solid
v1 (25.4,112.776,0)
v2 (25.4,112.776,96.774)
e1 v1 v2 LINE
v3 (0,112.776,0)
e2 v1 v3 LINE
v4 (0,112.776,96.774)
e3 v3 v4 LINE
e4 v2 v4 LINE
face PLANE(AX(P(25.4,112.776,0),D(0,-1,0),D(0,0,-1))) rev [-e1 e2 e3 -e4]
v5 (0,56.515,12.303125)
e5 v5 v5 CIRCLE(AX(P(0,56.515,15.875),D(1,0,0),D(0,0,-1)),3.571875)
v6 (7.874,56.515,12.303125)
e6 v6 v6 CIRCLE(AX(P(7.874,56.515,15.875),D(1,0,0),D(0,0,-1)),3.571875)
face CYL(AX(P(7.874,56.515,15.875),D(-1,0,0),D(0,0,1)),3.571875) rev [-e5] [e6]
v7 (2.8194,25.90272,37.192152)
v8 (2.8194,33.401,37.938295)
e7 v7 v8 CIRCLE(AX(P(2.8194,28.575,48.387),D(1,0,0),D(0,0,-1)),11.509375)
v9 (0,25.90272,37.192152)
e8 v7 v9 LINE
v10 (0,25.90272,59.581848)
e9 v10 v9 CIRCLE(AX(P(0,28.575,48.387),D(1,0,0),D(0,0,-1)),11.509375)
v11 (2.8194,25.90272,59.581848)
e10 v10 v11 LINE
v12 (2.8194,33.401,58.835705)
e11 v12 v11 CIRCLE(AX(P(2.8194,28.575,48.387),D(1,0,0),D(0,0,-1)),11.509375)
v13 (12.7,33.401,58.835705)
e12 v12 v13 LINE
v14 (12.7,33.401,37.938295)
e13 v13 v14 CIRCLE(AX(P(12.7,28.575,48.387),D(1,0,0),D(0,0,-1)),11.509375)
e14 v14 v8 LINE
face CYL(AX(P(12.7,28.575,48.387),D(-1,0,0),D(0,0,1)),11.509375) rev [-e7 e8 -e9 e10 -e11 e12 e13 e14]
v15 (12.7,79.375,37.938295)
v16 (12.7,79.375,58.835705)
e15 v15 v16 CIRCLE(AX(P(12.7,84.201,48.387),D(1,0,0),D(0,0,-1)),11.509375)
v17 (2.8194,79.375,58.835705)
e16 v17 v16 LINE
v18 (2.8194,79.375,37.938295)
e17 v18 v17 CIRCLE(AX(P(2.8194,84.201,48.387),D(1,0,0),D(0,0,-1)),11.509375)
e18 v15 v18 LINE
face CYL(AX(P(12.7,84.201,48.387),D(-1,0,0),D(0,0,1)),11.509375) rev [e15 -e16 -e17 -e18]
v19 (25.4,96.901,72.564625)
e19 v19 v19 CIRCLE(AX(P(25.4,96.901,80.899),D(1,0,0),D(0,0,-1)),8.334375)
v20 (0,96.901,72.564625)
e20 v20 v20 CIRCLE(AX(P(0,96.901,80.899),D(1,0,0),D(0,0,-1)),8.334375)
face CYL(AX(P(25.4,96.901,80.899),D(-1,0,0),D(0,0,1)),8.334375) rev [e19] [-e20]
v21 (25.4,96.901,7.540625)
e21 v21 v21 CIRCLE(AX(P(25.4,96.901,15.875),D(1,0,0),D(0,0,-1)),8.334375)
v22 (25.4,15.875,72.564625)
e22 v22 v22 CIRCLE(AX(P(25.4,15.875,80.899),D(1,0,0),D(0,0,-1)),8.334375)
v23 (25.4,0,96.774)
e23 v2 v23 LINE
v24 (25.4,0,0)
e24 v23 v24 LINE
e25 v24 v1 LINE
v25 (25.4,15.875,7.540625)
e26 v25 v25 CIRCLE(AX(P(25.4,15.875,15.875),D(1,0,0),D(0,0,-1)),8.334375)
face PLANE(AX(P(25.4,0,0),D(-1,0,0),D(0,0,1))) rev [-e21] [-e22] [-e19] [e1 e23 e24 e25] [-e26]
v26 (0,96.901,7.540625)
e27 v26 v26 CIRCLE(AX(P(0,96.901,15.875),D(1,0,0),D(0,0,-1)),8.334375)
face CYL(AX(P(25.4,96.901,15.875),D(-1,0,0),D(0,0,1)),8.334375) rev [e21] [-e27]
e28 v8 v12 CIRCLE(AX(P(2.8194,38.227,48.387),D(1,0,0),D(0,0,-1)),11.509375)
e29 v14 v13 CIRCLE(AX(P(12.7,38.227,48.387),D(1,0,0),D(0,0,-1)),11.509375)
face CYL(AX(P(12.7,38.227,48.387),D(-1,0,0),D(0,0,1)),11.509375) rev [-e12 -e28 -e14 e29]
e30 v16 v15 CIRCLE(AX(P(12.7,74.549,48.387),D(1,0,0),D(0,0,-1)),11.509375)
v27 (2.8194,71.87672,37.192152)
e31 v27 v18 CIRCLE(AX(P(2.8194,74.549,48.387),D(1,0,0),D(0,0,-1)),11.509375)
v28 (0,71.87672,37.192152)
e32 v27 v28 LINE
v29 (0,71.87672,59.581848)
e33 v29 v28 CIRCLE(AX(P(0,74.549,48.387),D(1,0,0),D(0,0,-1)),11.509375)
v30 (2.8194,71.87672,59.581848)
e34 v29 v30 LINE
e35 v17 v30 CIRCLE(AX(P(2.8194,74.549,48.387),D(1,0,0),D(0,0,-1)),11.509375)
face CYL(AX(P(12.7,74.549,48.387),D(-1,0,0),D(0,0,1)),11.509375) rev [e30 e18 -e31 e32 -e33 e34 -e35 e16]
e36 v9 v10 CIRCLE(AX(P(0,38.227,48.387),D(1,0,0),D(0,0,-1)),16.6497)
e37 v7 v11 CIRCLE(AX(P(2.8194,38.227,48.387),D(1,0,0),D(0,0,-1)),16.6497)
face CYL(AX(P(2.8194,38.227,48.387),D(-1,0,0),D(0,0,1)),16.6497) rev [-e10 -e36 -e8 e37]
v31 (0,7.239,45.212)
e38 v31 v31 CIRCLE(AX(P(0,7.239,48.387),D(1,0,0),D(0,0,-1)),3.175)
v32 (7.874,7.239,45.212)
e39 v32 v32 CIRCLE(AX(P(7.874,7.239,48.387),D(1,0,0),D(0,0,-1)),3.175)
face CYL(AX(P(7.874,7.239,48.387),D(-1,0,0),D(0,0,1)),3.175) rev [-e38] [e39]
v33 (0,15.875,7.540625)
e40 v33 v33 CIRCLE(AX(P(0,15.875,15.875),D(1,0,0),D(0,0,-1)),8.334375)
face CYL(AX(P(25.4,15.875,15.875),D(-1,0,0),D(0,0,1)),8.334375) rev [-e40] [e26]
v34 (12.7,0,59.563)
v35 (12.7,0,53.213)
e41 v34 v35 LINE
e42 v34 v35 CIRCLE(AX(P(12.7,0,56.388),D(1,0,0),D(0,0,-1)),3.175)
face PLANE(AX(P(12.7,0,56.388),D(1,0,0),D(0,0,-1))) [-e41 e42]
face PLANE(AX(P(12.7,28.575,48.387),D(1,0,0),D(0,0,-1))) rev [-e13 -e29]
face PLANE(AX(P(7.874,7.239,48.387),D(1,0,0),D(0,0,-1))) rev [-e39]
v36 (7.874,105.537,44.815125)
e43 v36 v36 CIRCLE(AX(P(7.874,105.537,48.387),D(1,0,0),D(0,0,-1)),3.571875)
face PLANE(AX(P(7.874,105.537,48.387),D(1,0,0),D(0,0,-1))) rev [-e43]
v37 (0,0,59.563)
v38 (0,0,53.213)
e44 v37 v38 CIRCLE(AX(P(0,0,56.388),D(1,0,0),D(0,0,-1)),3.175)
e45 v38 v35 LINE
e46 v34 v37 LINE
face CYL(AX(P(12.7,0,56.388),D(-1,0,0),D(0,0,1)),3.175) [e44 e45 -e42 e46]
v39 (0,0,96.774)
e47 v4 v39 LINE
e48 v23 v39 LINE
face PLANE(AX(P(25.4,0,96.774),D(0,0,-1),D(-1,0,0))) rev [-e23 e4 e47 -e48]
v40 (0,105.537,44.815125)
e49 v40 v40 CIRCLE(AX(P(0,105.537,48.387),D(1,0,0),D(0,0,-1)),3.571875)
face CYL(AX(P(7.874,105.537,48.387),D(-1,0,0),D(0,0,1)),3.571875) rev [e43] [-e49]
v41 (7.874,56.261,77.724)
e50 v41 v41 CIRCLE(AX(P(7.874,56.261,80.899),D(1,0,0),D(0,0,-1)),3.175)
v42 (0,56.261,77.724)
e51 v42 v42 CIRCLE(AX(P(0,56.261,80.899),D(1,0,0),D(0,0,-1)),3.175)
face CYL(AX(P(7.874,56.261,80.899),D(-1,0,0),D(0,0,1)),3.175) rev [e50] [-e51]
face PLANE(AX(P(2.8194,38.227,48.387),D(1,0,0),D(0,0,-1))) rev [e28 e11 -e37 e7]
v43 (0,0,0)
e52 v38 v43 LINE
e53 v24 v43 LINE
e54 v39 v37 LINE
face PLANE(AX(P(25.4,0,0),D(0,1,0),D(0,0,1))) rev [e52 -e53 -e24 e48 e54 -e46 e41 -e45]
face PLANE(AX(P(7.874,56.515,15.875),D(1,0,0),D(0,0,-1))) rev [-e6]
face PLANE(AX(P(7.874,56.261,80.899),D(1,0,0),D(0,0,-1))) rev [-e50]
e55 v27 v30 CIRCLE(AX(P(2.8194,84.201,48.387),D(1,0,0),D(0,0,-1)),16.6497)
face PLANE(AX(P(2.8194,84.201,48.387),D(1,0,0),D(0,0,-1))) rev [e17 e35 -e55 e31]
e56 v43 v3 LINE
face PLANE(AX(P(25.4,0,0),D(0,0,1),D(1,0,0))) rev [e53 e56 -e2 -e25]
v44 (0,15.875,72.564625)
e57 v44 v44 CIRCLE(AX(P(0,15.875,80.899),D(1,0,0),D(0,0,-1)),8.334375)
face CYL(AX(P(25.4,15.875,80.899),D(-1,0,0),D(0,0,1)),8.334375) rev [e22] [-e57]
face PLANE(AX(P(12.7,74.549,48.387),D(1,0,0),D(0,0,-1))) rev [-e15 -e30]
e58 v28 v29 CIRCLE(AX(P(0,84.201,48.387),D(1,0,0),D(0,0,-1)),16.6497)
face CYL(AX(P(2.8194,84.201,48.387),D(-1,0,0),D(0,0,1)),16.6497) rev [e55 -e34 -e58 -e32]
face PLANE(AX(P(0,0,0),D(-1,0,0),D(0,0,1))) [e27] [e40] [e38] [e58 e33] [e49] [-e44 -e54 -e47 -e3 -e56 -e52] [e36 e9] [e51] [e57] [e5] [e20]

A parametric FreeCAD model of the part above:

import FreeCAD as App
import Part
import Sketcher
from FreeCAD import Vector
Q = App.Units.Quantity

doc = App.newDocument("Part")
body = doc.addObject("PartDesign::Body", "Body")

# Sketch on YZ plane
sketch1 = body.newObject("Sketcher::SketchObject", "Sketch")
sketch1.AttachmentSupport = (doc.getObject("YZ_Plane"), [""])
sketch1.MapMode = "FlatFace"
sketch1.addGeometry(Part.LineSegment(Vector(0, 97, 0), Vector(0, 0, 0)), False)
sketch1.addGeometry(Part.LineSegment(Vector(0, 0, 0), Vector(113, 0, 0)), False)
sketch1.addGeometry(Part.LineSegment(Vector(113, 0, 0), Vector(113, 97, 0)), False)
sketch1.addGeometry(Part.LineSegment(Vector(113, 97, 0), Vector(0, 97, 0)), False)
sketch1.addConstraint(Sketcher.Constraint("Coincident", 0, 2, 1, 1))
sketch1.addConstraint(Sketcher.Constraint("Coincident", 1, 2, 2, 1))
sketch1.addConstraint(Sketcher.Constraint("Coincident", 2, 2, 3, 1))
sketch1.addConstraint(Sketcher.Constraint("Coincident", 3, 2, 0, 1))
sketch1.addConstraint(Sketcher.Constraint("Vertical", 0))
sketch1.addConstraint(Sketcher.Constraint("Horizontal", 1))
sketch1.addConstraint(Sketcher.Constraint("Vertical", 2))
sketch1.addConstraint(Sketcher.Constraint("Horizontal", 3))
sketch1.addConstraint(Sketcher.Constraint("Coincident", 0, 2, -1, 1))
sketch1.addConstraint(Sketcher.Constraint("DistanceX", 1, 1, 1, 2, Q("4.44 in")))
sketch1.addConstraint(Sketcher.Constraint("DistanceY", 0, 2, 0, 1, Q("3.81 in")))
pad1 = body.newObject("PartDesign::Pad", "Pad")
pad1.Profile = sketch1
pad1.Length = Q("1 in")

# Sketch on YZ plane
sketch2 = body.newObject("Sketcher::SketchObject", "Sketch001")
sketch2.AttachmentSupport = (doc.getObject("YZ_Plane"), [""])
sketch2.MapMode = "FlatFace"
sketch2.addGeometry(Part.Circle(Vector(16, 16, 0), Vector(0, 0, 1), 8), False)
sketch2.addGeometry(Part.Circle(Vector(97, 16, 0), Vector(0, 0, 1), 8), False)
sketch2.addGeometry(Part.Circle(Vector(16, 81, 0), Vector(0, 0, 1), 8), False)
sketch2.addGeometry(Part.Circle(Vector(97, 81, 0), Vector(0, 0, 1), 8), False)
sketch2.addConstraint(Sketcher.Constraint("Equal", 0, 1))
sketch2.addConstraint(Sketcher.Constraint("Equal", 1, 2))
sketch2.addConstraint(Sketcher.Constraint("Equal", 2, 3))
sketch2.addConstraint(Sketcher.Constraint("Horizontal", 0, 3, 1, 3))
sketch2.addConstraint(Sketcher.Constraint("Horizontal", 2, 3, 3, 3))
sketch2.addConstraint(Sketcher.Constraint("Vertical", 0, 3, 2, 3))
sketch2.addConstraint(Sketcher.Constraint("Vertical", 1, 3, 3, 3))
sketch2.addConstraint(Sketcher.Constraint("Diameter", 0, Q("0.65625 in")))
sketch2.addConstraint(Sketcher.Constraint("DistanceX", 0, 3, 1, 3, Q("3.19 in")))
sketch2.addConstraint(Sketcher.Constraint("DistanceY", 0, 3, 2, 3, Q("2.56 in")))
sketch2.addConstraint(Sketcher.Constraint("DistanceX", -1, 1, 0, 3, Q("0.625 in")))
sketch2.addConstraint(Sketcher.Constraint("DistanceY", -1, 1, 0, 3, Q("0.625 in")))
pocket1 = body.newObject("PartDesign::Pocket", "Pocket")
pocket1.Profile = sketch2
pocket1.Type = "ThroughAll"
pocket1.Reversed = True

# Sketch on YZ plane
sketch3 = body.newObject("Sketcher::SketchObject", "Sketch002")
sketch3.AttachmentSupport = (doc.getObject("YZ_Plane"), [""])
sketch3.MapMode = "FlatFace"
sketch3.addGeometry(Part.Circle(Vector(29, 48, 0), Vector(0, 0, 1), 12), False)
sketch3.addGeometry(Part.Circle(Vector(75, 48, 0), Vector(0, 0, 1), 12), False)
sketch3.addConstraint(Sketcher.Constraint("Equal", 0, 1))
sketch3.addConstraint(Sketcher.Constraint("Horizontal", 0, 3, 1, 3))
sketch3.addConstraint(Sketcher.Constraint("Diameter", 0, Q("0.90625 in")))
sketch3.addConstraint(Sketcher.Constraint("DistanceX", 0, 3, 1, 3, Q("1.81 in")))
sketch3.addConstraint(Sketcher.Constraint("DistanceX", -1, 1, 0, 3, Q("1.125 in")))
sketch3.addConstraint(Sketcher.Constraint("DistanceY", -1, 1, 0, 3, Q("1.905 in")))
pocket2 = body.newObject("PartDesign::Pocket", "Pocket001")
pocket2.Profile = sketch3
pocket2.Length = Q("0.5 in")
pocket2.Reversed = True

# Sketch on YZ plane
sketch4 = body.newObject("Sketcher::SketchObject", "Sketch003")
sketch4.AttachmentSupport = (doc.getObject("YZ_Plane"), [""])
sketch4.MapMode = "FlatFace"
sketch4.addGeometry(Part.Circle(Vector(38, 48, 0), Vector(0, 0, 1), 12), False)
sketch4.addGeometry(Part.Circle(Vector(84, 48, 0), Vector(0, 0, 1), 12), False)
sketch4.addConstraint(Sketcher.Constraint("Equal", 0, 1))
sketch4.addConstraint(Sketcher.Constraint("Horizontal", 0, 3, 1, 3))
sketch4.addConstraint(Sketcher.Constraint("Diameter", 0, Q("0.90625 in")))
sketch4.addConstraint(Sketcher.Constraint("DistanceX", 0, 3, 1, 3, Q("1.81 in")))
sketch4.addConstraint(Sketcher.Constraint("DistanceX", -1, 1, 0, 3, Q("1.505 in")))
sketch4.addConstraint(Sketcher.Constraint("DistanceY", -1, 1, 0, 3, Q("1.905 in")))
pocket3 = body.newObject("PartDesign::Pocket", "Pocket002")
pocket3.Profile = sketch4
pocket3.Length = Q("0.5 in")
pocket3.Reversed = True

# Sketch on YZ plane
sketch5 = body.newObject("Sketcher::SketchObject", "Sketch004")
sketch5.AttachmentSupport = (doc.getObject("YZ_Plane"), [""])
sketch5.MapMode = "FlatFace"
sketch5.addGeometry(Part.Circle(Vector(38, 48, 0), Vector(0, 0, 1), 17), False)
sketch5.addGeometry(Part.Circle(Vector(84, 48, 0), Vector(0, 0, 1), 17), False)
sketch5.addConstraint(Sketcher.Constraint("Equal", 0, 1))
sketch5.addConstraint(Sketcher.Constraint("Horizontal", 0, 3, 1, 3))
sketch5.addConstraint(Sketcher.Constraint("Diameter", 0, Q("1.311 in")))
sketch5.addConstraint(Sketcher.Constraint("DistanceX", 0, 3, 1, 3, Q("1.81 in")))
sketch5.addConstraint(Sketcher.Constraint("DistanceX", -1, 1, 0, 3, Q("1.505 in")))
sketch5.addConstraint(Sketcher.Constraint("DistanceY", -1, 1, 0, 3, Q("1.905 in")))
pocket4 = body.newObject("PartDesign::Pocket", "Pocket003")
pocket4.Profile = sketch5
pocket4.Length = Q("0.111 in")
pocket4.Reversed = True

# Sketch on YZ plane
sketch6 = body.newObject("Sketcher::SketchObject", "Sketch005")
sketch6.AttachmentSupport = (doc.getObject("YZ_Plane"), [""])
sketch6.MapMode = "FlatFace"
sketch6.addGeometry(Part.Circle(Vector(105.5, 48.4, 0), Vector(0, 0, 1), 3.6), False)
sketch6.addGeometry(Part.Circle(Vector(56.5, 15.9, 0), Vector(0, 0, 1), 3.6), False)
sketch6.addConstraint(Sketcher.Constraint("Equal", 0, 1))
sketch6.addConstraint(Sketcher.Constraint("Diameter", 0, Q("0.28125 in")))
sketch6.addConstraint(Sketcher.Constraint("DistanceX", 1, 3, 0, 3, Q("1.93 in")))
sketch6.addConstraint(Sketcher.Constraint("DistanceY", 1, 3, 0, 3, Q("1.28 in")))
sketch6.addConstraint(Sketcher.Constraint("DistanceX", -1, 1, 0, 3, Q("4.155 in")))
sketch6.addConstraint(Sketcher.Constraint("DistanceY", -1, 1, 0, 3, Q("1.905 in")))
pocket5 = body.newObject("PartDesign::Pocket", "Pocket004")
pocket5.Profile = sketch6
pocket5.Length = Q("0.31 in")
pocket5.Reversed = True

# Sketch on YZ plane
sketch7 = body.newObject("Sketcher::SketchObject", "Sketch006")
sketch7.AttachmentSupport = (doc.getObject("YZ_Plane"), [""])
sketch7.MapMode = "FlatFace"
sketch7.addGeometry(Part.Circle(Vector(7.2, 48.4, 0), Vector(0, 0, 1), 3.2), False)
sketch7.addGeometry(Part.Circle(Vector(56.3, 80.9, 0), Vector(0, 0, 1), 3.2), False)
sketch7.addConstraint(Sketcher.Constraint("Equal", 0, 1))
sketch7.addConstraint(Sketcher.Constraint("Diameter", 0, Q("0.25 in")))
sketch7.addConstraint(Sketcher.Constraint("DistanceX", 0, 3, 1, 3, Q("1.93 in")))
sketch7.addConstraint(Sketcher.Constraint("DistanceY", 0, 3, 1, 3, Q("1.28 in")))
sketch7.addConstraint(Sketcher.Constraint("DistanceX", -1, 1, 0, 3, Q("0.285 in")))
sketch7.addConstraint(Sketcher.Constraint("DistanceY", -1, 1, 0, 3, Q("1.905 in")))
pocket6 = body.newObject("PartDesign::Pocket", "Pocket005")
pocket6.Profile = sketch7
pocket6.Length = Q("0.31 in")
pocket6.Reversed = True

# Sketch on YZ plane
sketch8 = body.newObject("Sketcher::SketchObject", "Sketch007")
sketch8.AttachmentSupport = (doc.getObject("YZ_Plane"), [""])
sketch8.MapMode = "FlatFace"
sketch8.addGeometry(Part.Circle(Vector(0, 56.4, 0), Vector(0, 0, 1), 3.2), False)
sketch8.addConstraint(Sketcher.Constraint("PointOnObject", 0, 3, -2))
sketch8.addConstraint(Sketcher.Constraint("Diameter", 0, Q("0.25 in")))
sketch8.addConstraint(Sketcher.Constraint("DistanceY", -1, 1, 0, 3, Q("2.22 in")))
pad2 = body.newObject("PartDesign::Pad", "Pad001")
pad2.Profile = sketch8
pad2.Length = Q("0.5 in")

doc.recompute()
